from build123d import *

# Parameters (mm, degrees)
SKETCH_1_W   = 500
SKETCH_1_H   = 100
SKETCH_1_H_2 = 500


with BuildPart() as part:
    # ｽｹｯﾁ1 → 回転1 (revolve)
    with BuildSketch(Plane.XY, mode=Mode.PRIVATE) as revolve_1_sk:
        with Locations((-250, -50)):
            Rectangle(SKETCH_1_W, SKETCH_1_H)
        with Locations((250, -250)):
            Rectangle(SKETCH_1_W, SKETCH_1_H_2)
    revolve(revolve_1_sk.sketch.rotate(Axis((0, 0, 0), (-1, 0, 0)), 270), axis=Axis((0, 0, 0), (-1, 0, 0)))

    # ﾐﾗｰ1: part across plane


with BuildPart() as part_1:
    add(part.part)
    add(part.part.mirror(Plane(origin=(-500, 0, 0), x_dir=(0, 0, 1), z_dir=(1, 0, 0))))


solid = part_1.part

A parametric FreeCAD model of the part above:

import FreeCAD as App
import Part
import Sketcher
from FreeCAD import Vector


def add_polygon(sketch, points):
    """Adds a closed chain of lines whose ends are joined by coincident constraints."""
    first, n = sketch.GeometryCount, len(points)
    for a, b in zip(points, points[1:] + points[:1]):
        sketch.addGeometry(Part.LineSegment(App.Vector(*a, 0), App.Vector(*b, 0)), False)
    for i in range(n):
        sketch.addConstraint(Sketcher.Constraint("Coincident", first + i, 2, first + (i + 1) % n, 1))

doc = App.newDocument("Part")
params = doc.addObject("Spreadsheet::Sheet", "Params")
for row, (alias, value) in enumerate([
    ("sketch1_width", "500 mm"),
    ("sketch1_height", "100 mm"),
    ("revolution_angle", "360 deg"),
], start=1):
    params.set(f"A{row}", alias)
    params.set(f"B{row}", "=" + value)
    params.setAlias(f"B{row}", alias)

body = doc.addObject("PartDesign::Body", "Body")

# Sketch on XY plane
sketch1 = body.newObject("Sketcher::SketchObject", "Sketch")
sketch1.AttachmentSupport = (doc.getObject("XY_Plane"), [""])
sketch1.MapMode = "FlatFace"
add_polygon(sketch1, [(-500, 0), (-500, -100), (0, -100), (0, -500), (500, -500), (500, 0)])  # lines 0-5
sketch1.addConstraint(Sketcher.Constraint("Vertical", 0))
sketch1.addConstraint(Sketcher.Constraint("Horizontal", 1))
sketch1.addConstraint(Sketcher.Constraint("Vertical", 2))
sketch1.addConstraint(Sketcher.Constraint("Horizontal", 3))
sketch1.addConstraint(Sketcher.Constraint("Vertical", 4))
sketch1.addConstraint(Sketcher.Constraint("Horizontal", 5))
sketch1.addConstraint(Sketcher.Constraint("Symmetric", 4, 2, 5, 2, -1, 1))
sketch1.addConstraint(Sketcher.Constraint("PointOnObject", 1, 2, -2))
sketch1.addConstraint(Sketcher.Constraint("Equal", 3, 4))
sketch1.addConstraint(Sketcher.Constraint("DistanceX", 1, 1, 1, 2, 500.0))
sketch1.addConstraint(Sketcher.Constraint("DistanceY", 0, 2, 0, 1, 100.0))
sketch1.setExpression("Constraints[15]", "Params.sketch1_width")
sketch1.setExpression("Constraints[16]", "Params.sketch1_height")
revolution = body.newObject("PartDesign::Revolution", "Revolution")
revolution.Profile = sketch1
revolution.ReferenceAxis = (sketch1, ["H_Axis"])
revolution.setExpression("Angle", "Params.revolution_angle")
body2 = doc.addObject("PartDesign::Body", "Body001")
doc.recompute()

body2.BaseFeature = body
doc.recompute()

mirroring = doc.addObject("Part::Mirroring", "Mirroring")
mirroring.Source = body
mirroring.Base = Vector(-500, 0, 0)
mirroring.Normal = Vector(1, 0, 0)
body3 = doc.addObject("PartDesign::Body", "Body002")
body3.BaseFeature = mirroring
boolean = body2.newObject("PartDesign::Boolean", "Boolean")
boolean.Type = "Fuse"
boolean.addObjects([body3])
doc.recompute()
mirroring.Visibility = False

doc.recompute()
